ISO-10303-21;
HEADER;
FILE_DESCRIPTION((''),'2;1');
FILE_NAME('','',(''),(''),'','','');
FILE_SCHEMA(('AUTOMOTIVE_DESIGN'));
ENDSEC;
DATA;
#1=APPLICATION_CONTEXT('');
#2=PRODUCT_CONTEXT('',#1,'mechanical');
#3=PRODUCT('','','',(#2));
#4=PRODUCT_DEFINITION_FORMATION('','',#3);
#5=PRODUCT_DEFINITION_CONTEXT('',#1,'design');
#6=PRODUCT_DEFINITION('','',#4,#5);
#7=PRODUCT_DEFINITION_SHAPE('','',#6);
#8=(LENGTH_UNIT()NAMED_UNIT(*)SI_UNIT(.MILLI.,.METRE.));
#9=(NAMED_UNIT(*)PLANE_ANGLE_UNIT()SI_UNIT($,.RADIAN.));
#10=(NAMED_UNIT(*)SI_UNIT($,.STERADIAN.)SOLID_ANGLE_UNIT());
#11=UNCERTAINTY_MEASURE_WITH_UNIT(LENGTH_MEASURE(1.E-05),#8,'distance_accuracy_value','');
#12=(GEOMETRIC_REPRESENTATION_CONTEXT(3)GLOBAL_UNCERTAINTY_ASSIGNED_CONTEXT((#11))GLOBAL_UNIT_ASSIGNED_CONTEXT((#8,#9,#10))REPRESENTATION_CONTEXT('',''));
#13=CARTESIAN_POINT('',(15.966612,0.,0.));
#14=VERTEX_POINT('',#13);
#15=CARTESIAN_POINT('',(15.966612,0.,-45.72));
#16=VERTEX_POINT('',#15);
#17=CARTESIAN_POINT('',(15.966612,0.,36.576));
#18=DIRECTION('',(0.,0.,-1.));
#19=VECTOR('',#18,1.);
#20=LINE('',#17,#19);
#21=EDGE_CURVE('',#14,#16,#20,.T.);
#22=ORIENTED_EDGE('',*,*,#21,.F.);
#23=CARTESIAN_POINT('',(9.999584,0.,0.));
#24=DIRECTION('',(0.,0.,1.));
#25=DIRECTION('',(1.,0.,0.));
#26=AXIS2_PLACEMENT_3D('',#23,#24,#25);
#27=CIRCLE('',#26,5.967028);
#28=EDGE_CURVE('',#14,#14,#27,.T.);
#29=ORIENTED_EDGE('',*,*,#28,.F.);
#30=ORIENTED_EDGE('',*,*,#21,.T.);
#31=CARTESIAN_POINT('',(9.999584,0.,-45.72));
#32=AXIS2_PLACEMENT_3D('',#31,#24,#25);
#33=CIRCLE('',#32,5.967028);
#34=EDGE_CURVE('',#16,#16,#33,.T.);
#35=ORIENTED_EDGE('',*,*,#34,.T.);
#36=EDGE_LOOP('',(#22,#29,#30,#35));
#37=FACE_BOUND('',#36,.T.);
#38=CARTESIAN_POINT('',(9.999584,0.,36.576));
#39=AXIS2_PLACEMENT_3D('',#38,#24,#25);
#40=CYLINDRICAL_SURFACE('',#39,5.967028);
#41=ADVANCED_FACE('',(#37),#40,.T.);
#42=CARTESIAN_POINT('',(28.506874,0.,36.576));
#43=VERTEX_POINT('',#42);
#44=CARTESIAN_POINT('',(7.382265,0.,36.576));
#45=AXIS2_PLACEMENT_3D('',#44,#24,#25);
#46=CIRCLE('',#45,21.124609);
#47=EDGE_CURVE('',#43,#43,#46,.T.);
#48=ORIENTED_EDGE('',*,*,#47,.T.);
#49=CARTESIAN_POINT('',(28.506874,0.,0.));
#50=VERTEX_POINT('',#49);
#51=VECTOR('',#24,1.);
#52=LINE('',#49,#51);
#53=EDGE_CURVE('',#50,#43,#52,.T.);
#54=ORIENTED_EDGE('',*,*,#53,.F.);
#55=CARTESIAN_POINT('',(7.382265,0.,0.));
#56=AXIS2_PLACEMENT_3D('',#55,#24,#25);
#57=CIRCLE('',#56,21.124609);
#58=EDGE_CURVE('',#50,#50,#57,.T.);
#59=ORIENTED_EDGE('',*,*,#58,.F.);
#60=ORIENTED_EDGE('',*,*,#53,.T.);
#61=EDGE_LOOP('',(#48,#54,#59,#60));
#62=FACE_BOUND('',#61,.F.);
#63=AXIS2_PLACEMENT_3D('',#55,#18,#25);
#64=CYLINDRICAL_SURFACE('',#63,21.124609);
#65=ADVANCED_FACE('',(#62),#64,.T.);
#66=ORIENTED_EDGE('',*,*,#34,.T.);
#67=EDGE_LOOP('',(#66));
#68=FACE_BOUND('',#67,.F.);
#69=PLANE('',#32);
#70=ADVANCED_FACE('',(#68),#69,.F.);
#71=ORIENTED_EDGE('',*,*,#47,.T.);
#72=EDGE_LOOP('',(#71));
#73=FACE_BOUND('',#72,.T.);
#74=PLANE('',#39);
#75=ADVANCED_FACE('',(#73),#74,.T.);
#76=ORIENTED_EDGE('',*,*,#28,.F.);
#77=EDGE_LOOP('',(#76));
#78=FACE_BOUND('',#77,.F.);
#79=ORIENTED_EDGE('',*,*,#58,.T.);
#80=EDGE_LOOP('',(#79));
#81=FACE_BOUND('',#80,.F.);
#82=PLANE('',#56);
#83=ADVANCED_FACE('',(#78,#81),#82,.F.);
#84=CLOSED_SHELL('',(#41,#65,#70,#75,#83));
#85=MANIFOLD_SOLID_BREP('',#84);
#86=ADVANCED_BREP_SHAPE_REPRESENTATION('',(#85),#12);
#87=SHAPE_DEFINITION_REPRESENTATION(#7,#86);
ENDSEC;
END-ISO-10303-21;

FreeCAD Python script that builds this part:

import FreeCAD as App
import Part
import Sketcher
Q = App.Units.Quantity

doc = App.newDocument("Part")
params = doc.addObject("Spreadsheet::Sheet", "Params")
for row, (alias, value) in enumerate([
    ("pad1_length", "1.44 in"),
    ("pad2_length", "3.24 in"),
], start=1):
    params.set(f"A{row}", alias)
    params.set(f"B{row}", "=" + value)
    params.setAlias(f"B{row}", alias)

body = doc.addObject("PartDesign::Body", "Body")

# Sketch on XY plane
sketch1 = body.newObject("Sketcher::SketchObject", "Sketch")
sketch1.AttachmentSupport = (doc.getObject("XY_Plane"), [""])
sketch1.MapMode = "FlatFace"
sketch1.addGeometry(Part.Circle(App.Vector(7, 0, 0), App.Vector(0, 0, 1), 21), False)
sketch1.addConstraint(Sketcher.Constraint("PointOnObject", 0, 3, -1))
sketch1.addConstraint(Sketcher.Constraint("Diameter", 0, Q("42.249218 mm")))
sketch1.addConstraint(Sketcher.Constraint("DistanceX", -1, 1, 0, 3, Q("7.382265 mm")))
pad1 = body.newObject("PartDesign::Pad", "Pad")
pad1.Profile = sketch1
pad1.setExpression("Length", "Params.pad1_length")

# Sketch on XY plane
sketch2 = body.newObject("Sketcher::SketchObject", "Sketch001")
sketch2.AttachmentSupport = (doc.getObject("XY_Plane"), [""])
sketch2.MapMode = "FlatFace"
sketch2.AttachmentOffset = App.Placement(App.Vector(0, 0, 1.44 * 25.4), App.Rotation())
sketch2.addGeometry(Part.Circle(App.Vector(10, 0, 0), App.Vector(0, 0, 1), 6), False)
sketch2.addConstraint(Sketcher.Constraint("PointOnObject", 0, 3, -1))
sketch2.addConstraint(Sketcher.Constraint("Diameter", 0, Q("11.934056 mm")))
sketch2.addConstraint(Sketcher.Constraint("DistanceX", -1, 1, 0, 3, Q("9.999584 mm")))
pad2 = body.newObject("PartDesign::Pad", "Pad001")
pad2.Profile = sketch2
pad2.setExpression("Length", "Params.pad2_length")
pad2.Reversed = True

doc.recompute()
